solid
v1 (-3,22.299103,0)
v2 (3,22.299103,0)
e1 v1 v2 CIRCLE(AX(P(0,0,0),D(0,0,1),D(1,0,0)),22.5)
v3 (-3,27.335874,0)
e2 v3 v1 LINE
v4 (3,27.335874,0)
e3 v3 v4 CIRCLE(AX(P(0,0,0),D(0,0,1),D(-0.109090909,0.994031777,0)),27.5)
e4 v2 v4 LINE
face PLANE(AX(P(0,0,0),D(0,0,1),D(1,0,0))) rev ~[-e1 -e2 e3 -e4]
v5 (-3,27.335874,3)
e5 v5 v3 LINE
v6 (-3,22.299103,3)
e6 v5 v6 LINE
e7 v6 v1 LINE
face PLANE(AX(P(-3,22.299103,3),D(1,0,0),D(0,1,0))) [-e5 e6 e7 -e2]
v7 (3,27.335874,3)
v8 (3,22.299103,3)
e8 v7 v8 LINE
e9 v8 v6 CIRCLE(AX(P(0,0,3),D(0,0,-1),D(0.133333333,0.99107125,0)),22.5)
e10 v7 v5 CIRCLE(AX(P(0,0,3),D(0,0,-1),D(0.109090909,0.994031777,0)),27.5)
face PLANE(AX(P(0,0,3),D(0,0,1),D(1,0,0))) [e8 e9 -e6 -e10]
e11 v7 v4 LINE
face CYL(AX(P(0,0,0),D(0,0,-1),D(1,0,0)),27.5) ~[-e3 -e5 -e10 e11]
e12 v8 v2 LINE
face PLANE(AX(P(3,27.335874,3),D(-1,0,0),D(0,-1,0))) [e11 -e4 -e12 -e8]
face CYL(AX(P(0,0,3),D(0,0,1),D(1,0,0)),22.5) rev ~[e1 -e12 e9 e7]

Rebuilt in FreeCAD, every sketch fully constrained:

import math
import FreeCAD as App
import Part
import Sketcher

doc = App.newDocument("Part")
body = doc.addObject("PartDesign::Body", "Body")

sketch1 = doc.addObject("Sketcher::SketchObject", "Sketch")
body.addObject(sketch1)
sketch1.AttachmentSupport = (doc.XY_Plane, [""])
sketch1.MapMode = "FlatFace"
sketch1.addGeometry(Part.Circle(App.Vector(0, 0, 0), App.Vector(0, 0, 1), 27.5), False)
sketch1.addConstraint([
    Sketcher.Constraint("Coincident", 0, 3, -1, 1),
    Sketcher.Constraint("Diameter", 0, 55.0),
])
pad1 = doc.addObject("PartDesign::Pad", "Pad")
body.addObject(pad1)
pad1.Profile = sketch1
pad1.Length = 3

sketch2 = doc.addObject("Sketcher::SketchObject", "Sketch001")
body.addObject(sketch2)
sketch2.AttachmentSupport = (doc.XY_Plane, [""])
sketch2.MapMode = "FlatFace"
sketch2.AttachmentOffset = App.Placement(App.Vector(0, 0, 3), App.Rotation())
sketch2.addGeometry([
    Part.LineSegment(App.Vector(3, 22.299103, 0), App.Vector(3, 27.5, 0)),
    Part.LineSegment(App.Vector(3, 27.5, 0), App.Vector(-3, 27.5, 0)),
    Part.LineSegment(App.Vector(-3, 27.5, 0), App.Vector(-3, 22.299103, 0)),
    Part.ArcOfCircle(Part.Circle(App.Vector(0, 0, 0), App.Vector(0, 0, 1), 22.5), math.radians(97.662256), math.radians(442.337744)),
], False)
sketch2.addConstraint([
    Sketcher.Constraint("Coincident", 0, 2, 1, 1),
    Sketcher.Constraint("Coincident", 1, 2, 2, 1),
    Sketcher.Constraint("Coincident", 2, 2, 3, 1),
    Sketcher.Constraint("Coincident", 3, 2, 0, 1),
    Sketcher.Constraint("Vertical", 0),
    Sketcher.Constraint("Horizontal", 1),
    Sketcher.Constraint("Vertical", 2),
    Sketcher.Constraint("Coincident", 3, 3, -1, 1),
    Sketcher.Constraint("Horizontal", 2, 2, 3, 2),
    Sketcher.Constraint("Radius", 3, 22.5),
    Sketcher.Constraint("DistanceX", 1, 2, 1, 1, 6.0),
    Sketcher.Constraint("DistanceY", -1, 1, 0, 2, 27.5),
])
pocket1 = doc.addObject("PartDesign::Pocket", "Pocket")
body.addObject(pocket1)
pocket1.Profile = sketch2
pocket1.Type = "UpToFirst"

doc.recompute()
